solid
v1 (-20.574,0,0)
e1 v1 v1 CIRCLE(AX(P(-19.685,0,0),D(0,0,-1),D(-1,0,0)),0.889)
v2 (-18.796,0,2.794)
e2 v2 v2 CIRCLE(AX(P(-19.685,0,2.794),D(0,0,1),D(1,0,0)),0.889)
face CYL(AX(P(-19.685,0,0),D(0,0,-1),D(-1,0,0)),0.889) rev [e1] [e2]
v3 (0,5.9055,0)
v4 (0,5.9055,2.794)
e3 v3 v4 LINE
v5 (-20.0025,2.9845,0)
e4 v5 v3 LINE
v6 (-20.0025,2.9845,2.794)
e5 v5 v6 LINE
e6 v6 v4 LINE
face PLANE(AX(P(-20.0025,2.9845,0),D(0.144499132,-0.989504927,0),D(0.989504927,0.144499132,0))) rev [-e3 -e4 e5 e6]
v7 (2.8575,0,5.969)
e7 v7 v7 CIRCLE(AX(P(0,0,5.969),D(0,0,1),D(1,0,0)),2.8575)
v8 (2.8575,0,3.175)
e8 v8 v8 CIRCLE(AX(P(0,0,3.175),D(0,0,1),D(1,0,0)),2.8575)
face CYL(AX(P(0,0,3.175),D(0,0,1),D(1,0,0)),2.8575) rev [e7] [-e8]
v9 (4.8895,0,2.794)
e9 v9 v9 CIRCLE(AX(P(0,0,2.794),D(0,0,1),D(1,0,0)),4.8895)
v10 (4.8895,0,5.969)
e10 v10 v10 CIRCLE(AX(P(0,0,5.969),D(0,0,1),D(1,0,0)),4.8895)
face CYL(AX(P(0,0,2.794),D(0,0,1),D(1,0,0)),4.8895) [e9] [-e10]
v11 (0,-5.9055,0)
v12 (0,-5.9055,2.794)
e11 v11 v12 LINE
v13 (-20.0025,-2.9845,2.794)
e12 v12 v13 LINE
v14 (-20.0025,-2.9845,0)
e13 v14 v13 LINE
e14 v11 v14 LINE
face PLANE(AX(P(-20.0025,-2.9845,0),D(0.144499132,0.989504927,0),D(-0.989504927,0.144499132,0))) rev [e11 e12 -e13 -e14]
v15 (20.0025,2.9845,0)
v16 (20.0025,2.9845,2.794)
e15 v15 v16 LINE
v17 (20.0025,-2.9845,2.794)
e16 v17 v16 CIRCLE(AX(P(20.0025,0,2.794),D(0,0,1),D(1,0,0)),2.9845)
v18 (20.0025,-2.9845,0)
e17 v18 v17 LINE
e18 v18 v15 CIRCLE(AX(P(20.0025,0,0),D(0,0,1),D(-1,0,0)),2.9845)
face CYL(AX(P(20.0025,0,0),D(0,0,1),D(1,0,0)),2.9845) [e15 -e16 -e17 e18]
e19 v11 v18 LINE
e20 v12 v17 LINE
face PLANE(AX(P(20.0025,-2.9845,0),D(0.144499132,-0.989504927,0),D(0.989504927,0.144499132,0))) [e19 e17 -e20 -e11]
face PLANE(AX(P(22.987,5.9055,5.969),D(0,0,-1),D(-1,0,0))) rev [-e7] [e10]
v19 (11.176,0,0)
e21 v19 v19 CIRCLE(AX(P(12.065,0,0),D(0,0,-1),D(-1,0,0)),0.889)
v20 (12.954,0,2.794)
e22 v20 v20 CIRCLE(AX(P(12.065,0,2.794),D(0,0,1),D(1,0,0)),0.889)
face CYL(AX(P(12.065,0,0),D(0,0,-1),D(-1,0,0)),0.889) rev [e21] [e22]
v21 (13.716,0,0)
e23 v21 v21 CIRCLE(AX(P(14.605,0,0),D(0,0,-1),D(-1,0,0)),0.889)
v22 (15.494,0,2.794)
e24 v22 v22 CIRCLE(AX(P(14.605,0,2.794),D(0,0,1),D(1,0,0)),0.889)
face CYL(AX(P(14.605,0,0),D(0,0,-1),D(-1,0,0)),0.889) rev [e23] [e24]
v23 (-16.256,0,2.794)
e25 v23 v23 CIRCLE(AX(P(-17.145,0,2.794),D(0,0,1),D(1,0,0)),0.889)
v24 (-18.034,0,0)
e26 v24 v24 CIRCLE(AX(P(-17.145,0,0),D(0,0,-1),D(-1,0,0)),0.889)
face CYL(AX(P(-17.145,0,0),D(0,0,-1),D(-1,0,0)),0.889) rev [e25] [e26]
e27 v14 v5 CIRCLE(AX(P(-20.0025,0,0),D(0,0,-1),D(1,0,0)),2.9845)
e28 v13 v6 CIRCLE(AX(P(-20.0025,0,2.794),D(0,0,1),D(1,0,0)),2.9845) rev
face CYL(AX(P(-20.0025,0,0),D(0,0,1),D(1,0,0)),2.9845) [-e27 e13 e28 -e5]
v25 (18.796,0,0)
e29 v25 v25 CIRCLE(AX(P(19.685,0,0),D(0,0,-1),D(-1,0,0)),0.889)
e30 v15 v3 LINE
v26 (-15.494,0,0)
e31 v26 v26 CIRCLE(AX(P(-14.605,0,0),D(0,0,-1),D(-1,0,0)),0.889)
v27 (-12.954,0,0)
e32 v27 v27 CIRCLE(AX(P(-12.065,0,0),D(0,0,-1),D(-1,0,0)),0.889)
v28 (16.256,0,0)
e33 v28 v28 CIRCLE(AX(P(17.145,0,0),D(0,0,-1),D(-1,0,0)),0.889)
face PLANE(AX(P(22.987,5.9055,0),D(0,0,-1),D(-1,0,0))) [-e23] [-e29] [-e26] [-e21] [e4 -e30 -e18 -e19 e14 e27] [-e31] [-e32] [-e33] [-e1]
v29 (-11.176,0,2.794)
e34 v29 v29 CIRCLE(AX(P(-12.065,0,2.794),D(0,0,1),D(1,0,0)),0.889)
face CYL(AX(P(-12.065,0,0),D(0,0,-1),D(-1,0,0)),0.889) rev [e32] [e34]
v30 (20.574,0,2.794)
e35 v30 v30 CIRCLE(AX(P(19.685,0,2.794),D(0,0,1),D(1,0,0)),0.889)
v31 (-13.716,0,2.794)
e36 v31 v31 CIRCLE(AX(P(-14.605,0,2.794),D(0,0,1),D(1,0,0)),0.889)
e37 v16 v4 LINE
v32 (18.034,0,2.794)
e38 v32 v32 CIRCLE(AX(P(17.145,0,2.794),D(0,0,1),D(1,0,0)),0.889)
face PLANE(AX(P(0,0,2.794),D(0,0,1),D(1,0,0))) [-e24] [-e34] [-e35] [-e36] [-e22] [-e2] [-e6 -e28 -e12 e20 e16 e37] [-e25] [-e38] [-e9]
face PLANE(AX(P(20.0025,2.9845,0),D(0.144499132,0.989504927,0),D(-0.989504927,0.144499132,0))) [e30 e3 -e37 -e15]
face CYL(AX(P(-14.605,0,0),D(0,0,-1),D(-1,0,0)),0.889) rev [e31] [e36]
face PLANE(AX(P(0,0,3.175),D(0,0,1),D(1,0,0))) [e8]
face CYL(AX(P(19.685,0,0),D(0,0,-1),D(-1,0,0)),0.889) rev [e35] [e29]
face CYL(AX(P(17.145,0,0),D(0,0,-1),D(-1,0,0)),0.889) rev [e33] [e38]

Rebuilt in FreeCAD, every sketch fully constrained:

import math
import FreeCAD as App
import Part
import Sketcher
Q = App.Units.Quantity


def add_polygon(sketch, points):
    """Adds a closed chain of lines whose ends are joined by coincident constraints."""
    first, n = sketch.GeometryCount, len(points)
    for a, b in zip(points, points[1:] + points[:1]):
        sketch.addGeometry(Part.LineSegment(App.Vector(*a, 0), App.Vector(*b, 0)), False)
    for i in range(n):
        sketch.addConstraint(Sketcher.Constraint("Coincident", first + i, 2, first + (i + 1) % n, 1))

doc = App.newDocument("Part")
body = doc.addObject("PartDesign::Body", "Body")

# Sketch on XY plane
sketch1 = body.newObject("Sketcher::SketchObject", "Sketch")
sketch1.AttachmentSupport = (doc.getObject("XY_Plane"), [""])
sketch1.MapMode = "FlatFace"
add_polygon(sketch1, [(-23, 6), (-23, -6), (23, -6), (23, 6)])  # lines 0-3
sketch1.addConstraint(Sketcher.Constraint("Vertical", 0))
sketch1.addConstraint(Sketcher.Constraint("Horizontal", 1))
sketch1.addConstraint(Sketcher.Constraint("Vertical", 2))
sketch1.addConstraint(Sketcher.Constraint("Horizontal", 3))
sketch1.addConstraint(Sketcher.Constraint("Symmetric", 0, 2, 2, 2, -1, 1))
sketch1.addConstraint(Sketcher.Constraint("DistanceX", 1, 1, 1, 2, Q("1.81 in")))
sketch1.addConstraint(Sketcher.Constraint("DistanceY", 0, 2, 0, 1, Q("0.465 in")))
pad1 = body.newObject("PartDesign::Pad", "Pad")
pad1.Profile = sketch1
pad1.Length = Q("0.235 in")

# Sketch on XY plane
sketch2 = body.newObject("Sketcher::SketchObject", "Sketch001")
sketch2.AttachmentSupport = (doc.getObject("XY_Plane"), [""])
sketch2.MapMode = "FlatFace"
sketch2.AttachmentOffset = App.Placement(App.Vector(0, 0, 0.235 * 25.4), App.Rotation())
add_polygon(sketch2, [(-28.8, 11.7), (-28.8, -11.7), (28.8, -11.7), (28.8, 11.7)])  # lines 0-3
sketch2.addGeometry(Part.Circle(App.Vector(0, 0, 0), App.Vector(0, 0, 1), 4.9), False)  # 4
sketch2.addConstraint(Sketcher.Constraint("Vertical", 0))
sketch2.addConstraint(Sketcher.Constraint("Horizontal", 1))
sketch2.addConstraint(Sketcher.Constraint("Vertical", 2))
sketch2.addConstraint(Sketcher.Constraint("Horizontal", 3))
sketch2.addConstraint(Sketcher.Constraint("Coincident", 4, 3, -1, 1))
sketch2.addConstraint(Sketcher.Constraint("Diameter", 4, Q("0.385 in")))
sketch2.addConstraint(Sketcher.Constraint("DistanceX", 1, 1, 1, 2, 57.542))
sketch2.addConstraint(Sketcher.Constraint("DistanceY", 0, 2, 0, 1, 23.379))
sketch2.addConstraint(Sketcher.Constraint("DistanceX", 0, 2, -1, 1, 28.771))
sketch2.addConstraint(Sketcher.Constraint("DistanceY", 0, 2, -1, 1, 11.69))
pocket1 = body.newObject("PartDesign::Pocket", "Pocket")
pocket1.Profile = sketch2
pocket1.Length = Q("0.125 in")

# Sketch on XY plane
sketch3 = body.newObject("Sketcher::SketchObject", "Sketch002")
sketch3.AttachmentSupport = (doc.getObject("XY_Plane"), [""])
sketch3.MapMode = "FlatFace"
sketch3.AttachmentOffset = App.Placement(App.Vector(0, 0, 0.235 * 25.4), App.Rotation())
sketch3.addGeometry(Part.Circle(App.Vector(0, 0, 0), App.Vector(0, 0, 1), 2.9), False)
sketch3.addConstraint(Sketcher.Constraint("Coincident", 0, 3, -1, 1))
sketch3.addConstraint(Sketcher.Constraint("Diameter", 0, Q("0.225 in")))
pocket2 = body.newObject("PartDesign::Pocket", "Pocket001")
pocket2.Profile = sketch3
pocket2.Length = Q("0.11 in")

# Sketch on YZ plane
sketch4 = body.newObject("Sketcher::SketchObject", "Sketch003")
sketch4.AttachmentSupport = (doc.getObject("YZ_Plane"), [""])
sketch4.MapMode = "FlatFace"
sketch4.AttachmentOffset = App.Placement(App.Vector(0, 0, 0.475 * 25.4), App.Rotation())
add_polygon(sketch4, [(0, 5.6), (0, 0), (0.9, 0), (0.9, 5.1)])  # lines 0-3
sketch4.addConstraint(Sketcher.Constraint("Vertical", 0))
sketch4.addConstraint(Sketcher.Constraint("Horizontal", 1))
sketch4.addConstraint(Sketcher.Constraint("Vertical", 2))
sketch4.addConstraint(Sketcher.Constraint("Coincident", 0, 2, -1, 1))
sketch4.addConstraint(Sketcher.Constraint("DistanceY", 2, 1, 2, 2, Q("0.2 in")))
sketch4.addConstraint(Sketcher.Constraint("Angle", 3, Q("149 deg")))
sketch4.addConstraint(Sketcher.Constraint("DistanceX", 1, 1, 1, 2, Q("0.035 in")))
groove = body.newObject("PartDesign::Groove", "Groove")
groove.Profile = sketch4
groove.ReferenceAxis = (sketch4, ["V_Axis"])
groove.Angle = 360
doc.recompute()

linearpattern = body.newObject("PartDesign::LinearPattern", "LinearPattern")
linearpattern.Originals = [groove]
linearpattern.Direction = (doc.getObject("X_Axis"), [""])
linearpattern.Mode = "offset"
linearpattern.Offset = Q("0.1 in")
linearpattern.Occurrences = 4
body.Tip = linearpattern
doc.recompute()

mirrored = body.newObject("PartDesign::Mirrored", "Mirrored")
mirrored.Originals = [groove]
mirrored.MirrorPlane = (doc.getObject("YZ_Plane"), [""])
body.Tip = mirrored

# Sketch on YZ plane
sketch5 = body.newObject("Sketcher::SketchObject", "Sketch004")
sketch5.AttachmentSupport = (doc.getObject("YZ_Plane"), [""])
sketch5.MapMode = "FlatFace"
sketch5.AttachmentOffset = App.Placement(App.Vector(0, 0, -0.575 * 25.4), App.Rotation())
add_polygon(sketch5, [(0, 0), (0, 5.6), (0.9, 5.1), (0.9, 0)])  # lines 0-3
sketch5.addConstraint(Sketcher.Constraint("Vertical", 0))
sketch5.addConstraint(Sketcher.Constraint("Vertical", 2))
sketch5.addConstraint(Sketcher.Constraint("Horizontal", 3))
sketch5.addConstraint(Sketcher.Constraint("Coincident", 3, 2, -1, 1))
sketch5.addConstraint(Sketcher.Constraint("DistanceY", 2, 2, 2, 1, Q("0.2 in")))
sketch5.addConstraint(Sketcher.Constraint("Angle", 1, Q("-31 deg")))
sketch5.addConstraint(Sketcher.Constraint("DistanceX", 3, 2, 3, 1, Q("0.035 in")))
groove2 = body.newObject("PartDesign::Groove", "Groove001")
groove2.Profile = sketch5
groove2.ReferenceAxis = (sketch5, ["V_Axis"])
groove2.Angle = 360

# Sketch on YZ plane
sketch6 = body.newObject("Sketcher::SketchObject", "Sketch005")
sketch6.AttachmentSupport = (doc.getObject("YZ_Plane"), [""])
sketch6.MapMode = "FlatFace"
sketch6.AttachmentOffset = App.Placement(App.Vector(0, 0, -0.675 * 25.4), App.Rotation())
add_polygon(sketch6, [(0, 0), (0, 5.6), (0.9, 5.1), (0.9, 0)])  # lines 0-3
sketch6.addConstraint(Sketcher.Constraint("Vertical", 0))
sketch6.addConstraint(Sketcher.Constraint("Vertical", 2))
sketch6.addConstraint(Sketcher.Constraint("Horizontal", 3))
sketch6.addConstraint(Sketcher.Constraint("Coincident", 3, 2, -1, 1))
sketch6.addConstraint(Sketcher.Constraint("DistanceY", 2, 2, 2, 1, Q("0.2 in")))
sketch6.addConstraint(Sketcher.Constraint("Angle", 1, Q("-31 deg")))
sketch6.addConstraint(Sketcher.Constraint("DistanceX", 3, 2, 3, 1, Q("0.035 in")))
groove3 = body.newObject("PartDesign::Groove", "Groove002")
groove3.Profile = sketch6
groove3.ReferenceAxis = (sketch6, ["V_Axis"])
groove3.Angle = 360

# Sketch on YZ plane
sketch7 = body.newObject("Sketcher::SketchObject", "Sketch006")
sketch7.AttachmentSupport = (doc.getObject("YZ_Plane"), [""])
sketch7.MapMode = "FlatFace"
sketch7.AttachmentOffset = App.Placement(App.Vector(0, 0, -0.775 * 25.4), App.Rotation())
add_polygon(sketch7, [(0, 0), (0, 5.6), (0.9, 5.1), (0.9, 0)])  # lines 0-3
sketch7.addConstraint(Sketcher.Constraint("Vertical", 0))
sketch7.addConstraint(Sketcher.Constraint("Vertical", 2))
sketch7.addConstraint(Sketcher.Constraint("Horizontal", 3))
sketch7.addConstraint(Sketcher.Constraint("Coincident", 3, 2, -1, 1))
sketch7.addConstraint(Sketcher.Constraint("DistanceY", 2, 2, 2, 1, Q("0.2 in")))
sketch7.addConstraint(Sketcher.Constraint("Angle", 1, Q("-31 deg")))
sketch7.addConstraint(Sketcher.Constraint("DistanceX", 3, 2, 3, 1, Q("0.035 in")))
groove4 = body.newObject("PartDesign::Groove", "Groove003")
groove4.Profile = sketch7
groove4.ReferenceAxis = (sketch7, ["V_Axis"])
groove4.Angle = 360

# Sketch on XY plane
sketch8 = body.newObject("Sketcher::SketchObject", "Sketch007")
sketch8.AttachmentSupport = (doc.getObject("XY_Plane"), [""])
sketch8.MapMode = "FlatFace"
sketch8.addGeometry(Part.LineSegment(App.Vector(61, 14.8, 0), App.Vector(-20, 3, 0)), False)
sketch8.addGeometry(Part.ArcOfCircle(Part.Circle(App.Vector(-20, 0, 0), App.Vector(0, 0, 1), 3), math.radians(90), math.radians(180)), False)
sketch8.addGeometry(Part.ArcOfCircle(Part.Circle(App.Vector(-20, 0, 0), App.Vector(0, 0, 1), 3), math.radians(-180), math.radians(-90)), False)
sketch8.addGeometry(Part.LineSegment(App.Vector(-20, -3, 0), App.Vector(61, -14.8, 0)), False)
sketch8.addGeometry(Part.LineSegment(App.Vector(61, -14.8, 0), App.Vector(-62.3, -14.8, 0)), False)
sketch8.addGeometry(Part.LineSegment(App.Vector(-62.3, -14.8, 0), App.Vector(-62.3, 14.8, 0)), False)
sketch8.addGeometry(Part.LineSegment(App.Vector(-62.3, 14.8, 0), App.Vector(61, 14.8, 0)), False)
sketch8.addConstraint(Sketcher.Constraint("Coincident", 0, 2, 1, 1))
sketch8.addConstraint(Sketcher.Constraint("Tangent", 1, 2, 2, 1))
sketch8.addConstraint(Sketcher.Constraint("Coincident", 2, 2, 3, 1))
sketch8.addConstraint(Sketcher.Constraint("Coincident", 3, 2, 4, 1))
sketch8.addConstraint(Sketcher.Constraint("Coincident", 4, 2, 5, 1))
sketch8.addConstraint(Sketcher.Constraint("Coincident", 5, 2, 6, 1))
sketch8.addConstraint(Sketcher.Constraint("Coincident", 6, 2, 0, 1))
sketch8.addConstraint(Sketcher.Constraint("Horizontal", 4))
sketch8.addConstraint(Sketcher.Constraint("Vertical", 5))
sketch8.addConstraint(Sketcher.Constraint("Horizontal", 6))
sketch8.addConstraint(Sketcher.Constraint("Equal", 1, 2))
sketch8.addConstraint(Sketcher.Constraint("Symmetric", 0, 2, 2, 2, -1))
sketch8.addConstraint(Sketcher.Constraint("Symmetric", 3, 2, 6, 2, -1))
sketch8.addConstraint(Sketcher.Constraint("PointOnObject", 1, 2, -1))
sketch8.addConstraint(Sketcher.Constraint("Vertical", 2, 3, 0, 2))
sketch8.addConstraint(Sketcher.Constraint("Radius", 1, Q("0.1175 in")))
sketch8.addConstraint(Sketcher.Constraint("DistanceX", 1, 2, -1, 1, Q("0.905 in")))
sketch8.addConstraint(Sketcher.Constraint("DistanceX", 4, 2, 4, 1, 123.375192))
sketch8.addConstraint(Sketcher.Constraint("DistanceY", 5, 1, 5, 2, 29.638608))
sketch8.addConstraint(Sketcher.Constraint("Distance", 0, 81.90225))
pocket3 = body.newObject("PartDesign::Pocket", "Pocket002")
pocket3.Profile = sketch8
pocket3.Type = "ThroughAll"
pocket3.Reversed = True
doc.recompute()

mirrored2 = body.newObject("PartDesign::Mirrored", "Mirrored001")
mirrored2.Originals = [pocket3]
mirrored2.MirrorPlane = (doc.getObject("YZ_Plane"), [""])
body.Tip = mirrored2

doc.recompute()
